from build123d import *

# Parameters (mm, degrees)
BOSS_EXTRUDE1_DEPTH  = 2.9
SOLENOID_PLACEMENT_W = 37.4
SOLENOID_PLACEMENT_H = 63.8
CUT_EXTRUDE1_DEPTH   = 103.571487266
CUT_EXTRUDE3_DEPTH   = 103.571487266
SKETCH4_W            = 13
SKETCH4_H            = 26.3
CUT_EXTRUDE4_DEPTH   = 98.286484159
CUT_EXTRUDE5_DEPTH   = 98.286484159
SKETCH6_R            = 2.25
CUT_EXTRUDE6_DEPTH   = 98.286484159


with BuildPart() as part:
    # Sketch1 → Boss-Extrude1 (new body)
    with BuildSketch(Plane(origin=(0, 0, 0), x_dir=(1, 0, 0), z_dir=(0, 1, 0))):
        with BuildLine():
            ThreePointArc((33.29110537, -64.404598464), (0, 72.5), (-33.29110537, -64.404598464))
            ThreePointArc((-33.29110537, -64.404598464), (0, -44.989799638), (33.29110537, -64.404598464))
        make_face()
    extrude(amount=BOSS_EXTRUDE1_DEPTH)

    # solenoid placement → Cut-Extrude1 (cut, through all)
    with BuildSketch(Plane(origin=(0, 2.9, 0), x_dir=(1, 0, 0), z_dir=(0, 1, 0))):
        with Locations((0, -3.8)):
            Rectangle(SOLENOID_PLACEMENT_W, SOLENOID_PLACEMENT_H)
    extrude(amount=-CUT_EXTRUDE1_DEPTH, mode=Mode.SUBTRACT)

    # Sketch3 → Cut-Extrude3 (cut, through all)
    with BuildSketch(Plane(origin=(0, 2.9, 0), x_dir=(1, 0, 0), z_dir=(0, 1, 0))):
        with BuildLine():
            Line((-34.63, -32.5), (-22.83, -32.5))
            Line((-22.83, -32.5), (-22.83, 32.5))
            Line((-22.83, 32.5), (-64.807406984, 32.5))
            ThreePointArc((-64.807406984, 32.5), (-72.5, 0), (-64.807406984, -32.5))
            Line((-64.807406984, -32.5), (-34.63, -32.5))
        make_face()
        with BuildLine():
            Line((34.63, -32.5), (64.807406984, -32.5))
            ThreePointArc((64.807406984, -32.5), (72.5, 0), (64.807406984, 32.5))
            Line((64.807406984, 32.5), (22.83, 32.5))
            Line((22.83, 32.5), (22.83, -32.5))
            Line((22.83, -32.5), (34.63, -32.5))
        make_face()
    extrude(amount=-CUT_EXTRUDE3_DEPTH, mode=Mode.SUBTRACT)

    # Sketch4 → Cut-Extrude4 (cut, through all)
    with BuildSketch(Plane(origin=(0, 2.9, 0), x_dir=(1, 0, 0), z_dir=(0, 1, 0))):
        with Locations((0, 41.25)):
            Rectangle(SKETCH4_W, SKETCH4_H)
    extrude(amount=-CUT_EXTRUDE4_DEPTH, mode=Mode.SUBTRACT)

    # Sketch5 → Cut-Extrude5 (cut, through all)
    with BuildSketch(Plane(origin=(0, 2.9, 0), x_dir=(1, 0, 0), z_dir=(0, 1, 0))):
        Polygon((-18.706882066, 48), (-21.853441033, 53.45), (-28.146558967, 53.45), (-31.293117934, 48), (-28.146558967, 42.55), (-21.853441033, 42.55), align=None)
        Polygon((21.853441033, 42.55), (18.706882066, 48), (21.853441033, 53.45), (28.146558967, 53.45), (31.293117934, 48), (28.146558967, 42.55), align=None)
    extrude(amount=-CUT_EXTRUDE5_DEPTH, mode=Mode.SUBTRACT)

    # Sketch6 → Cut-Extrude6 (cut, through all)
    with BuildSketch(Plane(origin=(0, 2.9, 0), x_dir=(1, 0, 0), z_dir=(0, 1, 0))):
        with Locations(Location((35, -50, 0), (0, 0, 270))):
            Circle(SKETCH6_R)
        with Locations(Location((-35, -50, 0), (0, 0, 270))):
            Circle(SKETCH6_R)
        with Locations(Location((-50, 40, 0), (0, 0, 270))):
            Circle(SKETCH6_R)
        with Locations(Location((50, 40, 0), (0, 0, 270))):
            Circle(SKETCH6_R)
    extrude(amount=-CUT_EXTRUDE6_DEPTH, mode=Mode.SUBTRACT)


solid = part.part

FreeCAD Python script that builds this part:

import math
import FreeCAD as App
import Part
import Sketcher
from FreeCAD import Vector
Q = App.Units.Quantity

doc = App.newDocument("Part")
body = doc.addObject("PartDesign::Body", "Body")

# Sketch on XZ plane
sketch1 = body.newObject("Sketcher::SketchObject", "Sketch")
sketch1.AttachmentSupport = (doc.getObject("XZ_Plane"), [""])
sketch1.MapMode = "FlatFace"
sketch1.addGeometry(Part.ArcOfCircle(Part.Circle(Vector(0, 0, 0), Vector(0, 0, 1), 72.5), math.radians(117.334701), math.radians(422.665299)), False)
sketch1.addGeometry(Part.ArcOfCircle(Part.Circle(Vector(0, 83.2398, 0), Vector(0, 0, 1), 38.25), math.radians(-150.5), math.radians(-29.5)), False)
sketch1.addConstraint(Sketcher.Constraint("Coincident", 0, 1, 1, 1))
sketch1.addConstraint(Sketcher.Constraint("Coincident", 1, 2, 0, 2))
sketch1.addConstraint(Sketcher.Constraint("Coincident", 0, 3, -1, 1))
sketch1.addConstraint(Sketcher.Constraint("PointOnObject", 1, 3, -2))
sketch1.addConstraint(Sketcher.Constraint("Radius", 0, 72.5))
sketch1.addConstraint(Sketcher.Constraint("Radius", 1, 38.25))
sketch1.addConstraint(Sketcher.Constraint("DistanceY", -1, 1, 1, 3, 83.2398))
pad1 = body.newObject("PartDesign::Pad", "Pad")
pad1.Profile = sketch1
pad1.Length = 2.9
pad1.Reversed = True

# Sketch on XZ plane
sketch2 = body.newObject("Sketcher::SketchObject", "Sketch001")
sketch2.AttachmentSupport = (doc.getObject("XZ_Plane"), [""])
sketch2.MapMode = "FlatFace"
sketch2.AttachmentOffset = App.Placement(Vector(0, 0, -2.9), App.Rotation())
sketch2.addGeometry(Part.LineSegment(Vector(-18.7, -28.1, 0), Vector(-18.7, 35.7, 0)), False)
sketch2.addGeometry(Part.LineSegment(Vector(-18.7, 35.7, 0), Vector(18.7, 35.7, 0)), False)
sketch2.addGeometry(Part.LineSegment(Vector(18.7, 35.7, 0), Vector(18.7, -28.1, 0)), False)
sketch2.addGeometry(Part.LineSegment(Vector(18.7, -28.1, 0), Vector(-18.7, -28.1, 0)), False)
sketch2.addConstraint(Sketcher.Constraint("Coincident", 0, 2, 1, 1))
sketch2.addConstraint(Sketcher.Constraint("Coincident", 1, 2, 2, 1))
sketch2.addConstraint(Sketcher.Constraint("Coincident", 2, 2, 3, 1))
sketch2.addConstraint(Sketcher.Constraint("Coincident", 3, 2, 0, 1))
sketch2.addConstraint(Sketcher.Constraint("Vertical", 0))
sketch2.addConstraint(Sketcher.Constraint("Horizontal", 1))
sketch2.addConstraint(Sketcher.Constraint("Vertical", 2))
sketch2.addConstraint(Sketcher.Constraint("Horizontal", 3))
sketch2.addConstraint(Sketcher.Constraint("DistanceX", 1, 1, 1, 2, 37.4))
sketch2.addConstraint(Sketcher.Constraint("DistanceY", 0, 1, 0, 2, 63.8))
sketch2.addConstraint(Sketcher.Constraint("DistanceX", 0, 2, -1, 1, 18.7))
sketch2.addConstraint(Sketcher.Constraint("DistanceY", -1, 1, 0, 2, 35.7))
pocket1 = body.newObject("PartDesign::Pocket", "Pocket")
pocket1.Profile = sketch2
pocket1.Type = "ThroughAll"
pocket1.Reversed = True

# Sketch on XZ plane
sketch3 = body.newObject("Sketcher::SketchObject", "Sketch002")
sketch3.AttachmentSupport = (doc.getObject("XZ_Plane"), [""])
sketch3.MapMode = "FlatFace"
sketch3.AttachmentOffset = App.Placement(Vector(0, 0, -2.9), App.Rotation())
sketch3.addGeometry(Part.LineSegment(Vector(-22.83, 32.5, 0), Vector(-22.83, -32.5, 0)), False)
sketch3.addGeometry(Part.LineSegment(Vector(-22.83, -32.5, 0), Vector(-64.807407, -32.5, 0)), False)
sketch3.addGeometry(Part.ArcOfCircle(Part.Circle(Vector(0, 0, 0), Vector(0, 0, 1), 72.5), math.radians(153.366881), math.radians(206.633119)), False)
sketch3.addGeometry(Part.LineSegment(Vector(-64.807407, 32.5, 0), Vector(-22.83, 32.5, 0)), False)
sketch3.addGeometry(Part.ArcOfCircle(Part.Circle(Vector(0, 0, 0), Vector(0, 0, 1), 72.5), math.radians(-26.633119), math.radians(26.633119)), False)
sketch3.addGeometry(Part.LineSegment(Vector(64.807407, -32.5, 0), Vector(22.83, -32.5, 0)), False)
sketch3.addGeometry(Part.LineSegment(Vector(22.83, -32.5, 0), Vector(22.83, 32.5, 0)), False)
sketch3.addGeometry(Part.LineSegment(Vector(22.83, 32.5, 0), Vector(64.807407, 32.5, 0)), False)
sketch3.addConstraint(Sketcher.Constraint("Coincident", 0, 2, 1, 1))
sketch3.addConstraint(Sketcher.Constraint("Coincident", 1, 2, 2, 2))
sketch3.addConstraint(Sketcher.Constraint("Coincident", 2, 1, 3, 1))
sketch3.addConstraint(Sketcher.Constraint("Coincident", 3, 2, 0, 1))
sketch3.addConstraint(Sketcher.Constraint("Coincident", 4, 1, 5, 1))
sketch3.addConstraint(Sketcher.Constraint("Coincident", 5, 2, 6, 1))
sketch3.addConstraint(Sketcher.Constraint("Coincident", 6, 2, 7, 1))
sketch3.addConstraint(Sketcher.Constraint("Coincident", 7, 2, 4, 2))
sketch3.addConstraint(Sketcher.Constraint("Vertical", 0))
sketch3.addConstraint(Sketcher.Constraint("Horizontal", 1))
sketch3.addConstraint(Sketcher.Constraint("Horizontal", 3))
sketch3.addConstraint(Sketcher.Constraint("Horizontal", 5))
sketch3.addConstraint(Sketcher.Constraint("Vertical", 6))
sketch3.addConstraint(Sketcher.Constraint("Horizontal", 7))
sketch3.addConstraint(Sketcher.Constraint("Coincident", 2, 3, -1, 1))
sketch3.addConstraint(Sketcher.Constraint("Coincident", 4, 3, -1, 1))
sketch3.addConstraint(Sketcher.Constraint("Equal", 2, 4))
sketch3.addConstraint(Sketcher.Constraint("Symmetric", 3, 2, 5, 2, -1, 1))
sketch3.addConstraint(Sketcher.Constraint("Horizontal", 1, 2, 4, 1))
sketch3.addConstraint(Sketcher.Constraint("Horizontal", 3, 2, 6, 2))
sketch3.addConstraint(Sketcher.Constraint("Radius", 2, 72.5))
sketch3.addConstraint(Sketcher.Constraint("DistanceY", 0, 2, 0, 1, 65.0))
sketch3.addConstraint(Sketcher.Constraint("DistanceX", 0, 2, -1, 1, 22.83))
pocket2 = body.newObject("PartDesign::Pocket", "Pocket001")
pocket2.Profile = sketch3
pocket2.Type = "ThroughAll"
pocket2.Reversed = True

# Sketch on XZ plane
sketch4 = body.newObject("Sketcher::SketchObject", "Sketch003")
sketch4.AttachmentSupport = (doc.getObject("XZ_Plane"), [""])
sketch4.MapMode = "FlatFace"
sketch4.AttachmentOffset = App.Placement(Vector(0, 0, -2.9), App.Rotation())
sketch4.addGeometry(Part.LineSegment(Vector(-6.5, -54.4, 0), Vector(-6.5, -28.1, 0)), False)
sketch4.addGeometry(Part.LineSegment(Vector(-6.5, -28.1, 0), Vector(6.5, -28.1, 0)), False)
sketch4.addGeometry(Part.LineSegment(Vector(6.5, -28.1, 0), Vector(6.5, -54.4, 0)), False)
sketch4.addGeometry(Part.LineSegment(Vector(6.5, -54.4, 0), Vector(-6.5, -54.4, 0)), False)
sketch4.addConstraint(Sketcher.Constraint("Coincident", 0, 2, 1, 1))
sketch4.addConstraint(Sketcher.Constraint("Coincident", 1, 2, 2, 1))
sketch4.addConstraint(Sketcher.Constraint("Coincident", 2, 2, 3, 1))
sketch4.addConstraint(Sketcher.Constraint("Coincident", 3, 2, 0, 1))
sketch4.addConstraint(Sketcher.Constraint("Vertical", 0))
sketch4.addConstraint(Sketcher.Constraint("Horizontal", 1))
sketch4.addConstraint(Sketcher.Constraint("Vertical", 2))
sketch4.addConstraint(Sketcher.Constraint("Horizontal", 3))
sketch4.addConstraint(Sketcher.Constraint("DistanceX", 1, 1, 1, 2, 13.0))
sketch4.addConstraint(Sketcher.Constraint("DistanceY", 0, 1, 0, 2, 26.3))
sketch4.addConstraint(Sketcher.Constraint("DistanceX", 0, 2, -1, 1, 6.5))
sketch4.addConstraint(Sketcher.Constraint("DistanceY", 0, 2, -1, 1, 28.1))
pocket3 = body.newObject("PartDesign::Pocket", "Pocket002")
pocket3.Profile = sketch4
pocket3.Type = "ThroughAll"
pocket3.Reversed = True

# Sketch on XZ plane
sketch5 = body.newObject("Sketcher::SketchObject", "Sketch004")
sketch5.AttachmentSupport = (doc.getObject("XZ_Plane"), [""])
sketch5.MapMode = "FlatFace"
sketch5.AttachmentOffset = App.Placement(Vector(0, 0, -2.9), App.Rotation())
sketch5.addGeometry(Part.LineSegment(Vector(-18.706882, -48, 0), Vector(-21.853441, -53.45, 0)), False)
sketch5.addGeometry(Part.LineSegment(Vector(-21.853441, -53.45, 0), Vector(-28.146559, -53.45, 0)), False)
sketch5.addGeometry(Part.LineSegment(Vector(-28.146559, -53.45, 0), Vector(-31.293118, -48, 0)), False)
sketch5.addGeometry(Part.LineSegment(Vector(-31.293118, -48, 0), Vector(-28.146559, -42.55, 0)), False)
sketch5.addGeometry(Part.LineSegment(Vector(-28.146559, -42.55, 0), Vector(-21.853441, -42.55, 0)), False)
sketch5.addGeometry(Part.LineSegment(Vector(-21.853441, -42.55, 0), Vector(-18.706882, -48, 0)), False)
sketch5.addGeometry(Part.LineSegment(Vector(18.706882, -48, 0), Vector(21.853441, -42.55, 0)), False)
sketch5.addGeometry(Part.LineSegment(Vector(21.853441, -42.55, 0), Vector(28.146559, -42.55, 0)), False)
sketch5.addGeometry(Part.LineSegment(Vector(28.146559, -42.55, 0), Vector(31.293118, -48, 0)), False)
sketch5.addGeometry(Part.LineSegment(Vector(31.293118, -48, 0), Vector(28.146559, -53.45, 0)), False)
sketch5.addGeometry(Part.LineSegment(Vector(28.146559, -53.45, 0), Vector(21.853441, -53.45, 0)), False)
sketch5.addGeometry(Part.LineSegment(Vector(21.853441, -53.45, 0), Vector(18.706882, -48, 0)), False)
sketch5.addConstraint(Sketcher.Constraint("Coincident", 0, 2, 1, 1))
sketch5.addConstraint(Sketcher.Constraint("Coincident", 1, 2, 2, 1))
sketch5.addConstraint(Sketcher.Constraint("Coincident", 2, 2, 3, 1))
sketch5.addConstraint(Sketcher.Constraint("Coincident", 3, 2, 4, 1))
sketch5.addConstraint(Sketcher.Constraint("Coincident", 4, 2, 5, 1))
sketch5.addConstraint(Sketcher.Constraint("Coincident", 5, 2, 0, 1))
sketch5.addConstraint(Sketcher.Constraint("Coincident", 6, 2, 7, 1))
sketch5.addConstraint(Sketcher.Constraint("Coincident", 7, 2, 8, 1))
sketch5.addConstraint(Sketcher.Constraint("Coincident", 8, 2, 9, 1))
sketch5.addConstraint(Sketcher.Constraint("Coincident", 9, 2, 10, 1))
sketch5.addConstraint(Sketcher.Constraint("Coincident", 10, 2, 11, 1))
sketch5.addConstraint(Sketcher.Constraint("Coincident", 11, 2, 6, 1))
sketch5.addConstraint(Sketcher.Constraint("Horizontal", 1))
sketch5.addConstraint(Sketcher.Constraint("Horizontal", 4))
sketch5.addConstraint(Sketcher.Constraint("Horizontal", 7))
sketch5.addConstraint(Sketcher.Constraint("Horizontal", 10))
sketch5.addConstraint(Sketcher.Constraint("Symmetric", 4, 2, 6, 2, -2))
sketch5.addConstraint(Sketcher.Constraint("Symmetric", 2, 2, 8, 2, -2))
sketch5.addConstraint(Sketcher.Constraint("Symmetric", 1, 2, 9, 2, -2))
sketch5.addConstraint(Sketcher.Constraint("Symmetric", 5, 2, 11, 2, -2))
sketch5.addConstraint(Sketcher.Constraint("Parallel", 0, 3))
sketch5.addConstraint(Sketcher.Constraint("Parallel", 2, 5))
sketch5.addConstraint(Sketcher.Constraint("Parallel", 3, 6))
sketch5.addConstraint(Sketcher.Constraint("Parallel", 5, 8))
sketch5.addConstraint(Sketcher.Constraint("Parallel", 8, 11))
sketch5.addConstraint(Sketcher.Constraint("Horizontal", 2, 2, 5, 2))
sketch5.addConstraint(Sketcher.Constraint("Vertical", 1, 2, 3, 2))
sketch5.addConstraint(Sketcher.Constraint("Angle", 0, Q("-120 deg")))
sketch5.addConstraint(Sketcher.Constraint("DistanceY", 2, 2, -1, 1, 48.0))
sketch5.addConstraint(Sketcher.Constraint("DistanceX", 3, 2, 6, 2, 50.0))
sketch5.addConstraint(Sketcher.Constraint("DistanceY", 1, 2, 3, 2, 10.9))
sketch5.addConstraint(Sketcher.Constraint("DistanceX", 1, 2, 1, 1, 6.293118))
pocket4 = body.newObject("PartDesign::Pocket", "Pocket003")
pocket4.Profile = sketch5
pocket4.Type = "ThroughAll"
pocket4.Reversed = True

# Sketch on XZ plane
sketch6 = body.newObject("Sketcher::SketchObject", "Sketch005")
sketch6.AttachmentSupport = (doc.getObject("XZ_Plane"), [""])
sketch6.MapMode = "FlatFace"
sketch6.AttachmentOffset = App.Placement(Vector(0, 0, -2.9), App.Rotation())
sketch6.addGeometry(Part.Circle(Vector(35, 50, 0), Vector(0, 0, 1), 2.25), False)
sketch6.addGeometry(Part.Circle(Vector(-35, 50, 0), Vector(0, 0, 1), 2.25), False)
sketch6.addGeometry(Part.Circle(Vector(-50, -40, 0), Vector(0, 0, 1), 2.25), False)
sketch6.addGeometry(Part.Circle(Vector(50, -40, 0), Vector(0, 0, 1), 2.25), False)
sketch6.addConstraint(Sketcher.Constraint("Equal", 0, 1))
sketch6.addConstraint(Sketcher.Constraint("Equal", 1, 2))
sketch6.addConstraint(Sketcher.Constraint("Equal", 2, 3))
sketch6.addConstraint(Sketcher.Constraint("Symmetric", 0, 3, 1, 3, -2))
sketch6.addConstraint(Sketcher.Constraint("Symmetric", 2, 3, 3, 3, -2))
sketch6.addConstraint(Sketcher.Constraint("Diameter", 0, 4.5))
sketch6.addConstraint(Sketcher.Constraint("DistanceX", -1, 1, 0, 3, 35.0))
sketch6.addConstraint(Sketcher.Constraint("DistanceY", -1, 1, 0, 3, 50.0))
sketch6.addConstraint(Sketcher.Constraint("DistanceX", 2, 3, -1, 1, 50.0))
sketch6.addConstraint(Sketcher.Constraint("DistanceY", 2, 3, -1, 1, 40.0))
pocket5 = body.newObject("PartDesign::Pocket", "Pocket004")
pocket5.Profile = sketch6
pocket5.Type = "ThroughAll"
pocket5.Reversed = True

doc.recompute()
